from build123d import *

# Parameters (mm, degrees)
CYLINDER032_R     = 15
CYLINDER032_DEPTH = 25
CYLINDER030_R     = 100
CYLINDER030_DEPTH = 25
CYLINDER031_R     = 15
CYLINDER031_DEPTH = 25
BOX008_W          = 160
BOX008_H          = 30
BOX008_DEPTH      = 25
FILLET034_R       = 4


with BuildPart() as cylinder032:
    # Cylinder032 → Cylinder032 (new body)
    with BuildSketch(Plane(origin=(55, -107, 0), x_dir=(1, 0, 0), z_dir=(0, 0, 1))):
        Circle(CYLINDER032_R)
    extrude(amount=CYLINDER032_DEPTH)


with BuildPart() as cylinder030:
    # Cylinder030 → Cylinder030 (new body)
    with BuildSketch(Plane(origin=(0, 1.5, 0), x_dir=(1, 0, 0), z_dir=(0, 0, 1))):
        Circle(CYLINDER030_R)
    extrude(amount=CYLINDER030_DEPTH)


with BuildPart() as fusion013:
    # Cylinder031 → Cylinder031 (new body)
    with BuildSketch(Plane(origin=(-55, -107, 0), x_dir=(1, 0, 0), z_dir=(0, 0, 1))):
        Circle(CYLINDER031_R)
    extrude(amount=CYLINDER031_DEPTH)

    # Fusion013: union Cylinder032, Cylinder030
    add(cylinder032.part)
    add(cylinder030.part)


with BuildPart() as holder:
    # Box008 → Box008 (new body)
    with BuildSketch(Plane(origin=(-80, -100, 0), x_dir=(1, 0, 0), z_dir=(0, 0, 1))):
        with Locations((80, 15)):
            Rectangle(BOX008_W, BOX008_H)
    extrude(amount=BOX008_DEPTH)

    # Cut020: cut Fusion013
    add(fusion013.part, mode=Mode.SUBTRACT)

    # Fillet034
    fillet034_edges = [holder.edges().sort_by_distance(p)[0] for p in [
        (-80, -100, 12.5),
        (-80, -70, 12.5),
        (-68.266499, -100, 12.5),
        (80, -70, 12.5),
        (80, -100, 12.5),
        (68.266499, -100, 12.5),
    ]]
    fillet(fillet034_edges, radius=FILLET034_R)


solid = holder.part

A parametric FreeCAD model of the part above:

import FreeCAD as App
import Part
import Sketcher
Q = App.Units.Quantity


def edges_at(feature, points):
    """Names of the edges that pass closest to the given points."""
    edges = feature.Shape.Edges
    near = lambda p: min(range(len(edges)), key=lambda i: edges[i].distToShape(Part.Vertex(*p))[0])
    return sorted({f"Edge{near(p) + 1}" for p in points})

doc = App.newDocument("Part")
body = doc.addObject("PartDesign::Body", "Body")

sketch1 = body.newObject("Sketcher::SketchObject", "Sketch")
sketch1.AttachmentSupport = (doc.getObject("XY_Plane"), [""])
sketch1.MapMode = "FlatFace"
sketch1.addGeometry(Part.Circle(App.Vector(55, -107, 0), App.Vector(0, 0, 1), 15), False)
sketch1.addConstraint([
    Sketcher.Constraint("Diameter", 0, Q("30 mm")),
    Sketcher.Constraint("DistanceX", -1, 1, 0, 3, Q("55 mm")),
    Sketcher.Constraint("DistanceY", 0, 3, -1, 1, Q("107 mm")),
])
pad1 = body.newObject("PartDesign::Pad", "Pad")
pad1.Profile = sketch1
pad1.Length = 25
body2 = doc.addObject("PartDesign::Body", "Body001")

sketch2 = body2.newObject("Sketcher::SketchObject", "Sketch001")
sketch2.AttachmentSupport = (doc.getObject("XY_Plane001"), [""])
sketch2.MapMode = "FlatFace"
sketch2.addGeometry(Part.Circle(App.Vector(0, 2, 0), App.Vector(0, 0, 1), 100), False)
sketch2.addConstraint([
    Sketcher.Constraint("PointOnObject", 0, 3, -2),
    Sketcher.Constraint("Diameter", 0, Q("200 mm")),
    Sketcher.Constraint("DistanceY", -1, 1, 0, 3, Q("1.5 mm")),
])
pad2 = body2.newObject("PartDesign::Pad", "Pad001")
pad2.Profile = sketch2
pad2.Length = 25
body3 = doc.addObject("PartDesign::Body", "Body002")
body3.AllowCompound = True

sketch3 = body3.newObject("Sketcher::SketchObject", "Sketch002")
sketch3.AttachmentSupport = (doc.getObject("XY_Plane002"), [""])
sketch3.MapMode = "FlatFace"
sketch3.addGeometry(Part.Circle(App.Vector(-55, -107, 0), App.Vector(0, 0, 1), 15), False)
sketch3.addConstraint([
    Sketcher.Constraint("Diameter", 0, Q("30 mm")),
    Sketcher.Constraint("DistanceX", 0, 3, -1, 1, Q("55 mm")),
    Sketcher.Constraint("DistanceY", 0, 3, -1, 1, Q("107 mm")),
])
pad3 = body3.newObject("PartDesign::Pad", "Pad002")
pad3.Profile = sketch3
pad3.Length = 25
doc.recompute()

boolean = body3.newObject("PartDesign::Boolean", "Boolean")
boolean.Type = "Fuse"
boolean.addObjects([body])
doc.recompute()

boolean2 = body3.newObject("PartDesign::Boolean", "Boolean001")
boolean2.Type = "Fuse"
boolean2.addObjects([body2])
body4 = doc.addObject("PartDesign::Body", "Body003")

sketch4 = body4.newObject("Sketcher::SketchObject", "Sketch003")
sketch4.AttachmentSupport = (doc.getObject("XY_Plane003"), [""])
sketch4.MapMode = "FlatFace"
sketch4.addGeometry([
    Part.LineSegment(App.Vector(-80, -70, 0), App.Vector(-80, -100, 0)),
    Part.LineSegment(App.Vector(-80, -100, 0), App.Vector(80, -100, 0)),
    Part.LineSegment(App.Vector(80, -100, 0), App.Vector(80, -70, 0)),
    Part.LineSegment(App.Vector(80, -70, 0), App.Vector(-80, -70, 0)),
], False)
sketch4.addConstraint([
    Sketcher.Constraint("Coincident", 0, 2, 1, 1),
    Sketcher.Constraint("Coincident", 1, 2, 2, 1),
    Sketcher.Constraint("Coincident", 2, 2, 3, 1),
    Sketcher.Constraint("Coincident", 3, 2, 0, 1),
    Sketcher.Constraint("Vertical", 0),
    Sketcher.Constraint("Horizontal", 1),
    Sketcher.Constraint("Vertical", 2),
    Sketcher.Constraint("Horizontal", 3),
    Sketcher.Constraint("DistanceX", 1, 1, 1, 2, Q("160 mm")),
    Sketcher.Constraint("DistanceY", 0, 2, 0, 1, Q("30 mm")),
    Sketcher.Constraint("DistanceX", 0, 2, -1, 1, Q("80 mm")),
    Sketcher.Constraint("DistanceY", 0, 2, -1, 1, Q("100 mm")),
])
pad4 = body4.newObject("PartDesign::Pad", "Pad003")
pad4.Profile = sketch4
pad4.Length = 25
doc.recompute()

boolean3 = body4.newObject("PartDesign::Boolean", "Boolean002")
boolean3.Type = "Cut"
boolean3.addObjects([body3])
doc.recompute()

fillet = body4.newObject("PartDesign::Fillet", "Fillet")
fillet.Base = (boolean3, edges_at(boolean3, [
    (-80, -100, 12.5),
    (-80, -70, 12.5),
    (-68.266, -100, 12.5),
    (80, -70, 12.5),
    (80, -100, 12.5),
    (68.266, -100, 12.5),
]))
fillet.Radius = 4

doc.recompute()
